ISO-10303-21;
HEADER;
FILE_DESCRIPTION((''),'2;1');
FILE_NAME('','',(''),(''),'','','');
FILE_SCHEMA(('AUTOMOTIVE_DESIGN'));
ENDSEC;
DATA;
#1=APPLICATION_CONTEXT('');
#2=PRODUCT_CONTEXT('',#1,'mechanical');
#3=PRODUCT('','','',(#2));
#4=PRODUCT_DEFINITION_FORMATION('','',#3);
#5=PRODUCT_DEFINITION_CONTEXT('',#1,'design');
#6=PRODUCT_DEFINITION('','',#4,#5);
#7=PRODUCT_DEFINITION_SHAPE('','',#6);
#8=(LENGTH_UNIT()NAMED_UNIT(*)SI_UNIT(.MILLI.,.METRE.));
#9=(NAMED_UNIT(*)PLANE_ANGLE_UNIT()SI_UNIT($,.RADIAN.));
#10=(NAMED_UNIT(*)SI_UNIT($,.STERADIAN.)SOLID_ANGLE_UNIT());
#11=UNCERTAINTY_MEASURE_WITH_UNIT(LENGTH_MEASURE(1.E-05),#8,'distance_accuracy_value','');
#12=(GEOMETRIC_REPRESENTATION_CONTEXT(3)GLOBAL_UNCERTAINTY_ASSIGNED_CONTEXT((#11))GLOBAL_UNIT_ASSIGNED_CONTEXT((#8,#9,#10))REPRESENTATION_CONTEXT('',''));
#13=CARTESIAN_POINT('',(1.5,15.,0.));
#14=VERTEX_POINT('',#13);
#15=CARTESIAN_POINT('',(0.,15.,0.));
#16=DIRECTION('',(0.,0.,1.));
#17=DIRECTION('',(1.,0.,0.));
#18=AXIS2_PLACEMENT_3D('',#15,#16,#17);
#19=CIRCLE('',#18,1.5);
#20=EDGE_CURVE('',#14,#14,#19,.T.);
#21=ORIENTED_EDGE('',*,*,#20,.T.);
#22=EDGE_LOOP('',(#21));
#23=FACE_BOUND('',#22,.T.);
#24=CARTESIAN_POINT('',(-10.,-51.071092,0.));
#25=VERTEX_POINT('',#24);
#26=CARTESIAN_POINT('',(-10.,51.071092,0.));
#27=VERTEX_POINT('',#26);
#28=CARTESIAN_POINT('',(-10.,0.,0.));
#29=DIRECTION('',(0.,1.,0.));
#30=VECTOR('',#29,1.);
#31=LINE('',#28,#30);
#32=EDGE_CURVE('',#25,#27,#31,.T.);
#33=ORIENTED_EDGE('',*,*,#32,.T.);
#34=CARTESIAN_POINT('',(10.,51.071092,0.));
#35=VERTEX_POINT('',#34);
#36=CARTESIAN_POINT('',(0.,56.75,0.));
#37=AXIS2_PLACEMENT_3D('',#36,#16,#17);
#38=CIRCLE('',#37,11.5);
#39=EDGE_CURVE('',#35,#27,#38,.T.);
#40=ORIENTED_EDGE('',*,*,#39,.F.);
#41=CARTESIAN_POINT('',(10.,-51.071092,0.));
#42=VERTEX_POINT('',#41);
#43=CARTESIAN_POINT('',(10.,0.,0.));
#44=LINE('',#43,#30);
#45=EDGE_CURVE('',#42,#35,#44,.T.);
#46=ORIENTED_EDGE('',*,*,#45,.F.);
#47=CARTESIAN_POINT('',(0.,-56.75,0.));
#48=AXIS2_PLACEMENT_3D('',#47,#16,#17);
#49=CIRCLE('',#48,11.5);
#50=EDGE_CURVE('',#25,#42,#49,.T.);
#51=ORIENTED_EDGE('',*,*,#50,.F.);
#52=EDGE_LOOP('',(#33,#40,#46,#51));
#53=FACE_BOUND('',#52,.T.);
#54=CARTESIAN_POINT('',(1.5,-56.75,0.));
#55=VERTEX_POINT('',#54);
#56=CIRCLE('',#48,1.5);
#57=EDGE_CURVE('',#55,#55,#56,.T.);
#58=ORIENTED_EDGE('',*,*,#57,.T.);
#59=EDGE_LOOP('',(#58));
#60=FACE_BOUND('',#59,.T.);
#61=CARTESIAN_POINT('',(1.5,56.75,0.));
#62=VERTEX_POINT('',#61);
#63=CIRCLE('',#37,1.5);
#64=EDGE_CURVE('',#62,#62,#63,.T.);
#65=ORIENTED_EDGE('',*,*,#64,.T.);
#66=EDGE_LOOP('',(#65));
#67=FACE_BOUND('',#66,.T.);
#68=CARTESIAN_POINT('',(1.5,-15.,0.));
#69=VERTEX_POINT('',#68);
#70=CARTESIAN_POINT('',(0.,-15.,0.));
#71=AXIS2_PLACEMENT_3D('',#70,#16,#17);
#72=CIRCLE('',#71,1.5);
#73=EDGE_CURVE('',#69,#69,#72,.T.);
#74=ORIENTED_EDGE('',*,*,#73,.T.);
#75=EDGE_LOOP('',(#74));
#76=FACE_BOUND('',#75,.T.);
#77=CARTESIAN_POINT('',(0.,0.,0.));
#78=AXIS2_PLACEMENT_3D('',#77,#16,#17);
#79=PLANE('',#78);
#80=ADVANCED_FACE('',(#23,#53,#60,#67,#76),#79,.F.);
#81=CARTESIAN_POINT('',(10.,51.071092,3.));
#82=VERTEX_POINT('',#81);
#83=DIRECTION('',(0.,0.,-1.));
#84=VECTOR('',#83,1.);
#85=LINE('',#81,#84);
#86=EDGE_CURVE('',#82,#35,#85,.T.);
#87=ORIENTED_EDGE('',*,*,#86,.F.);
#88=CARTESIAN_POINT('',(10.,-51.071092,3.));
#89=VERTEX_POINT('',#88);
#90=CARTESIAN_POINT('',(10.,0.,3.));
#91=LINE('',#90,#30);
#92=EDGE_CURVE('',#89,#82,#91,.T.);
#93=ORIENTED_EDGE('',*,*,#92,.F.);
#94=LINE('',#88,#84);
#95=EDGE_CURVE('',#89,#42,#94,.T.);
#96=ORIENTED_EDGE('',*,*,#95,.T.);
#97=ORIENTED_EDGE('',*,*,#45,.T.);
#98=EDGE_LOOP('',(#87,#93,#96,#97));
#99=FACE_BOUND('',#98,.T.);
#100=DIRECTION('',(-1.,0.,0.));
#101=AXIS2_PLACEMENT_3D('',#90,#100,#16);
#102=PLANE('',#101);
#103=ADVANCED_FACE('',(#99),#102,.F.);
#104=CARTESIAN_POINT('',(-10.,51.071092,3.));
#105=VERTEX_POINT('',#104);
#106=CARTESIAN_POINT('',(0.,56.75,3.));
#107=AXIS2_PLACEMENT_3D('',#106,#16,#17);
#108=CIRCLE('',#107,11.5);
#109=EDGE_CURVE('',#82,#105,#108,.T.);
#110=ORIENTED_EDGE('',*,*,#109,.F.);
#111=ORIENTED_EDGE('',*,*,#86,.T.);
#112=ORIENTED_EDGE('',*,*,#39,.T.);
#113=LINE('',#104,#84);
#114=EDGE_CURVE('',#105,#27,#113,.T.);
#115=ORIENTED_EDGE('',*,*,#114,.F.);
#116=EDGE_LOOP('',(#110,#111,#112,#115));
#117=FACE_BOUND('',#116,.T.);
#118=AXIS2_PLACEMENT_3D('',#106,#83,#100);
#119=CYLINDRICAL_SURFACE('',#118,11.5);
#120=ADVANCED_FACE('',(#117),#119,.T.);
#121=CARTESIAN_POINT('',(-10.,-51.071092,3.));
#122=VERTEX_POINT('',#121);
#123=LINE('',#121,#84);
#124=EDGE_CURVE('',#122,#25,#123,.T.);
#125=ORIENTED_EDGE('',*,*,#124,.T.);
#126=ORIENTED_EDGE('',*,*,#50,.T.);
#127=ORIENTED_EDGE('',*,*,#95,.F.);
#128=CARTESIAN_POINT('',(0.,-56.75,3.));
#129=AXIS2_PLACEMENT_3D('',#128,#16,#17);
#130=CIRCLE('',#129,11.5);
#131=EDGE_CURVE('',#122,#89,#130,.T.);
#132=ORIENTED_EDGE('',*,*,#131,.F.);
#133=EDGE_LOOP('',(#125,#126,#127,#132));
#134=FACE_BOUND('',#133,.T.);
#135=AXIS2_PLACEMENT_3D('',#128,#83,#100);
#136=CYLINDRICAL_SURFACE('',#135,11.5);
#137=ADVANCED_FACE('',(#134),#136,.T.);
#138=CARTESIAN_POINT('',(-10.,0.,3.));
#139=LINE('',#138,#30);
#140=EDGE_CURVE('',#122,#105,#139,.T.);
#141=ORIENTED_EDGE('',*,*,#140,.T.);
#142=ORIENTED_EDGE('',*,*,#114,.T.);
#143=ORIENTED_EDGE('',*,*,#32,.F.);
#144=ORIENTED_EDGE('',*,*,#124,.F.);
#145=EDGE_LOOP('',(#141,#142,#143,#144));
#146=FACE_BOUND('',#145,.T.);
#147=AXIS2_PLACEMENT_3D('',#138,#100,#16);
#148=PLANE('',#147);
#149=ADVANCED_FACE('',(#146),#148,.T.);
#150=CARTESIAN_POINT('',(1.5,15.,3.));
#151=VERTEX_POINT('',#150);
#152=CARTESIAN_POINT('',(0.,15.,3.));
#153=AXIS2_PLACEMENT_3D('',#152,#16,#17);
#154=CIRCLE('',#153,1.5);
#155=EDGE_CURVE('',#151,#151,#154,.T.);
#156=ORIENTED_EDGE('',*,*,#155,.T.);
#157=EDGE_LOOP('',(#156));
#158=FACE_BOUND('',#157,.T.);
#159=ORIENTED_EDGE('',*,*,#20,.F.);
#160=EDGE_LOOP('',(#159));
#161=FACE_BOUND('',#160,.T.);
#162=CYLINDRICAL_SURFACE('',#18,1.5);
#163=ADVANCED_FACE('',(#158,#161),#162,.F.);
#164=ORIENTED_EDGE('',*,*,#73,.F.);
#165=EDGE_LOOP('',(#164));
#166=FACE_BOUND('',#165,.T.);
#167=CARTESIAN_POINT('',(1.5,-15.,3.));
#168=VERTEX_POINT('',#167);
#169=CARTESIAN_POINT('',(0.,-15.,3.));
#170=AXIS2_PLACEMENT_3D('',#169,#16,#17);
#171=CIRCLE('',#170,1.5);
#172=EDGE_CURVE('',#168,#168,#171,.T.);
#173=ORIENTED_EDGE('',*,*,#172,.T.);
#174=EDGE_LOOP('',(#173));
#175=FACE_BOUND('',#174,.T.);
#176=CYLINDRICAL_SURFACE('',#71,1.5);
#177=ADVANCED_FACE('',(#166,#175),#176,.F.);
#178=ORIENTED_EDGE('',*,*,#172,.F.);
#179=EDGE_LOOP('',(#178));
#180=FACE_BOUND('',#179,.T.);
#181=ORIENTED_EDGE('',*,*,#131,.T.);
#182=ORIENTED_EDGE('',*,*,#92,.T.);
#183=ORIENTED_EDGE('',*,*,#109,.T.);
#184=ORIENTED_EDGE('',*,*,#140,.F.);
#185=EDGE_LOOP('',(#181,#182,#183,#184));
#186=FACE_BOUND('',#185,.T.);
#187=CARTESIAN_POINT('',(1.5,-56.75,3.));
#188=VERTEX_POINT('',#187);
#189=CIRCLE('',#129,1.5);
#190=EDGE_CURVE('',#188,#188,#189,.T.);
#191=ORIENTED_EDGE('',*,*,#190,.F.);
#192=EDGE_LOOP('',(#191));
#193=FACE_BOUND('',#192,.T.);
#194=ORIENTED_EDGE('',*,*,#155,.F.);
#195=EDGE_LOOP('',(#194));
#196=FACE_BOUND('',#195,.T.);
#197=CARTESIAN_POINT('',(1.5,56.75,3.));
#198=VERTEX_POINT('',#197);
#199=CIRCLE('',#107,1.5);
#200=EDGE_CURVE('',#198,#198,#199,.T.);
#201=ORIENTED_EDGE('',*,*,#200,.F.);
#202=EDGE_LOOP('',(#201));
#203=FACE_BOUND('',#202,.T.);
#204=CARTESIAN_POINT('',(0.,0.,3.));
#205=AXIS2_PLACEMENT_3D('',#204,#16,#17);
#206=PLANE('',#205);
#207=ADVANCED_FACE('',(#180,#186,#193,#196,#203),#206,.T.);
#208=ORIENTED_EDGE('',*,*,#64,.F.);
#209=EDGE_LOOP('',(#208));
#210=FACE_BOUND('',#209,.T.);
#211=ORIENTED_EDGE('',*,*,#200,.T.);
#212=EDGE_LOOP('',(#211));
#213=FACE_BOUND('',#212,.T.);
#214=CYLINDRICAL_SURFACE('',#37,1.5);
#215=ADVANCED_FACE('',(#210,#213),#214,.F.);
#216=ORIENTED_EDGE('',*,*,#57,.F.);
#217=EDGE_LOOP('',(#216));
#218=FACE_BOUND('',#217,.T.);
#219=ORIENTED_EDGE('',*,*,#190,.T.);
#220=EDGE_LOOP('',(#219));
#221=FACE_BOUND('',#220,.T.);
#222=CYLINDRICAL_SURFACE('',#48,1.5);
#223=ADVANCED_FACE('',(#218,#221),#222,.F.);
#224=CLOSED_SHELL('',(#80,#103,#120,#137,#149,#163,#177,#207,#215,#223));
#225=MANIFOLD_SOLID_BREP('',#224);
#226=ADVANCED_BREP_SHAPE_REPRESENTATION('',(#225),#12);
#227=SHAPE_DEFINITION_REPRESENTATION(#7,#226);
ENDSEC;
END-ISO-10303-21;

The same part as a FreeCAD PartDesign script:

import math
import FreeCAD as App
import Part
import Sketcher
from FreeCAD import Vector

doc = App.newDocument("Part")
body = doc.addObject("PartDesign::Body", "Body")

# Sketch on XY plane
sketch1 = body.newObject("Sketcher::SketchObject", "Sketch")
sketch1.AttachmentSupport = (doc.getObject("XY_Plane"), [""])
sketch1.MapMode = "FlatFace"
sketch1.addGeometry(Part.ArcOfCircle(Part.Circle(Vector(0, 57, 0), Vector(0, 0, 1), 12), math.radians(0), math.radians(210)), False)
sketch1.addGeometry(Part.LineSegment(Vector(-10, 51, 0), Vector(-10, -51, 0)), False)
sketch1.addGeometry(Part.ArcOfCircle(Part.Circle(Vector(0, -57, 0), Vector(0, 0, 1), 12), math.radians(150), math.radians(360)), False)
sketch1.addGeometry(Part.ArcOfCircle(Part.Circle(Vector(0, -57, 0), Vector(0, 0, 1), 12), math.radians(0), math.radians(30)), False)
sketch1.addGeometry(Part.LineSegment(Vector(10, -51, 0), Vector(10, 51, 0)), False)
sketch1.addGeometry(Part.ArcOfCircle(Part.Circle(Vector(0, 57, 0), Vector(0, 0, 1), 12), math.radians(-30), math.radians(0)), False)
sketch1.addConstraint(Sketcher.Constraint("Coincident", 0, 2, 1, 1))
sketch1.addConstraint(Sketcher.Constraint("Coincident", 1, 2, 2, 1))
sketch1.addConstraint(Sketcher.Constraint("Tangent", 2, 2, 3, 1))
sketch1.addConstraint(Sketcher.Constraint("Coincident", 3, 2, 4, 1))
sketch1.addConstraint(Sketcher.Constraint("Coincident", 4, 2, 5, 1))
sketch1.addConstraint(Sketcher.Constraint("Tangent", 5, 2, 0, 1))
sketch1.addConstraint(Sketcher.Constraint("Vertical", 1))
sketch1.addConstraint(Sketcher.Constraint("Vertical", 4))
sketch1.addConstraint(Sketcher.Constraint("Equal", 0, 2))
sketch1.addConstraint(Sketcher.Constraint("Equal", 2, 3))
sketch1.addConstraint(Sketcher.Constraint("Equal", 3, 5))
sketch1.addConstraint(Sketcher.Constraint("Symmetric", 0, 3, 2, 3, -1, 1))
sketch1.addConstraint(Sketcher.Constraint("Symmetric", 1, 2, 3, 2, -2))
sketch1.addConstraint(Sketcher.Constraint("Horizontal", 3, 3, 2, 2))
sketch1.addConstraint(Sketcher.Constraint("Horizontal", 0, 3, 5, 2))
sketch1.addConstraint(Sketcher.Constraint("Radius", 0, 11.5))
sketch1.addConstraint(Sketcher.Constraint("DistanceX", 0, 2, -1, 1, 10.0))
sketch1.addConstraint(Sketcher.Constraint("DistanceY", 2, 3, 0, 3, 113.5))
pad1 = body.newObject("PartDesign::Pad", "Pad")
pad1.Profile = sketch1
pad1.Length = 3

# Sketch on XY plane
sketch2 = body.newObject("Sketcher::SketchObject", "Sketch001")
sketch2.AttachmentSupport = (doc.getObject("XY_Plane"), [""])
sketch2.MapMode = "FlatFace"
sketch2.AttachmentOffset = App.Placement(Vector(0, 0, 3), App.Rotation())
sketch2.addGeometry(Part.Circle(Vector(0, 15, 0), Vector(0, 0, 1), 1.5), False)
sketch2.addGeometry(Part.Circle(Vector(0, -15, 0), Vector(0, 0, 1), 1.5), False)
sketch2.addGeometry(Part.Circle(Vector(0, 56.8, 0), Vector(0, 0, 1), 1.5), False)
sketch2.addGeometry(Part.Circle(Vector(0, -56.8, 0), Vector(0, 0, 1), 1.5), False)
sketch2.addConstraint(Sketcher.Constraint("Equal", 0, 1))
sketch2.addConstraint(Sketcher.Constraint("Equal", 1, 2))
sketch2.addConstraint(Sketcher.Constraint("Equal", 2, 3))
sketch2.addConstraint(Sketcher.Constraint("Symmetric", 0, 3, 1, 3, -1, 1))
sketch2.addConstraint(Sketcher.Constraint("Symmetric", 2, 3, 3, 3, -1, 1))
sketch2.addConstraint(Sketcher.Constraint("PointOnObject", 0, 3, -2))
sketch2.addConstraint(Sketcher.Constraint("PointOnObject", 2, 3, -2))
sketch2.addConstraint(Sketcher.Constraint("Diameter", 0, 3.0))
sketch2.addConstraint(Sketcher.Constraint("DistanceY", -1, 1, 0, 3, 15.0))
sketch2.addConstraint(Sketcher.Constraint("DistanceY", 3, 3, 2, 3, 113.5))
pocket1 = body.newObject("PartDesign::Pocket", "Pocket")
pocket1.Profile = sketch2
pocket1.Type = "ThroughAll"

doc.recompute()
